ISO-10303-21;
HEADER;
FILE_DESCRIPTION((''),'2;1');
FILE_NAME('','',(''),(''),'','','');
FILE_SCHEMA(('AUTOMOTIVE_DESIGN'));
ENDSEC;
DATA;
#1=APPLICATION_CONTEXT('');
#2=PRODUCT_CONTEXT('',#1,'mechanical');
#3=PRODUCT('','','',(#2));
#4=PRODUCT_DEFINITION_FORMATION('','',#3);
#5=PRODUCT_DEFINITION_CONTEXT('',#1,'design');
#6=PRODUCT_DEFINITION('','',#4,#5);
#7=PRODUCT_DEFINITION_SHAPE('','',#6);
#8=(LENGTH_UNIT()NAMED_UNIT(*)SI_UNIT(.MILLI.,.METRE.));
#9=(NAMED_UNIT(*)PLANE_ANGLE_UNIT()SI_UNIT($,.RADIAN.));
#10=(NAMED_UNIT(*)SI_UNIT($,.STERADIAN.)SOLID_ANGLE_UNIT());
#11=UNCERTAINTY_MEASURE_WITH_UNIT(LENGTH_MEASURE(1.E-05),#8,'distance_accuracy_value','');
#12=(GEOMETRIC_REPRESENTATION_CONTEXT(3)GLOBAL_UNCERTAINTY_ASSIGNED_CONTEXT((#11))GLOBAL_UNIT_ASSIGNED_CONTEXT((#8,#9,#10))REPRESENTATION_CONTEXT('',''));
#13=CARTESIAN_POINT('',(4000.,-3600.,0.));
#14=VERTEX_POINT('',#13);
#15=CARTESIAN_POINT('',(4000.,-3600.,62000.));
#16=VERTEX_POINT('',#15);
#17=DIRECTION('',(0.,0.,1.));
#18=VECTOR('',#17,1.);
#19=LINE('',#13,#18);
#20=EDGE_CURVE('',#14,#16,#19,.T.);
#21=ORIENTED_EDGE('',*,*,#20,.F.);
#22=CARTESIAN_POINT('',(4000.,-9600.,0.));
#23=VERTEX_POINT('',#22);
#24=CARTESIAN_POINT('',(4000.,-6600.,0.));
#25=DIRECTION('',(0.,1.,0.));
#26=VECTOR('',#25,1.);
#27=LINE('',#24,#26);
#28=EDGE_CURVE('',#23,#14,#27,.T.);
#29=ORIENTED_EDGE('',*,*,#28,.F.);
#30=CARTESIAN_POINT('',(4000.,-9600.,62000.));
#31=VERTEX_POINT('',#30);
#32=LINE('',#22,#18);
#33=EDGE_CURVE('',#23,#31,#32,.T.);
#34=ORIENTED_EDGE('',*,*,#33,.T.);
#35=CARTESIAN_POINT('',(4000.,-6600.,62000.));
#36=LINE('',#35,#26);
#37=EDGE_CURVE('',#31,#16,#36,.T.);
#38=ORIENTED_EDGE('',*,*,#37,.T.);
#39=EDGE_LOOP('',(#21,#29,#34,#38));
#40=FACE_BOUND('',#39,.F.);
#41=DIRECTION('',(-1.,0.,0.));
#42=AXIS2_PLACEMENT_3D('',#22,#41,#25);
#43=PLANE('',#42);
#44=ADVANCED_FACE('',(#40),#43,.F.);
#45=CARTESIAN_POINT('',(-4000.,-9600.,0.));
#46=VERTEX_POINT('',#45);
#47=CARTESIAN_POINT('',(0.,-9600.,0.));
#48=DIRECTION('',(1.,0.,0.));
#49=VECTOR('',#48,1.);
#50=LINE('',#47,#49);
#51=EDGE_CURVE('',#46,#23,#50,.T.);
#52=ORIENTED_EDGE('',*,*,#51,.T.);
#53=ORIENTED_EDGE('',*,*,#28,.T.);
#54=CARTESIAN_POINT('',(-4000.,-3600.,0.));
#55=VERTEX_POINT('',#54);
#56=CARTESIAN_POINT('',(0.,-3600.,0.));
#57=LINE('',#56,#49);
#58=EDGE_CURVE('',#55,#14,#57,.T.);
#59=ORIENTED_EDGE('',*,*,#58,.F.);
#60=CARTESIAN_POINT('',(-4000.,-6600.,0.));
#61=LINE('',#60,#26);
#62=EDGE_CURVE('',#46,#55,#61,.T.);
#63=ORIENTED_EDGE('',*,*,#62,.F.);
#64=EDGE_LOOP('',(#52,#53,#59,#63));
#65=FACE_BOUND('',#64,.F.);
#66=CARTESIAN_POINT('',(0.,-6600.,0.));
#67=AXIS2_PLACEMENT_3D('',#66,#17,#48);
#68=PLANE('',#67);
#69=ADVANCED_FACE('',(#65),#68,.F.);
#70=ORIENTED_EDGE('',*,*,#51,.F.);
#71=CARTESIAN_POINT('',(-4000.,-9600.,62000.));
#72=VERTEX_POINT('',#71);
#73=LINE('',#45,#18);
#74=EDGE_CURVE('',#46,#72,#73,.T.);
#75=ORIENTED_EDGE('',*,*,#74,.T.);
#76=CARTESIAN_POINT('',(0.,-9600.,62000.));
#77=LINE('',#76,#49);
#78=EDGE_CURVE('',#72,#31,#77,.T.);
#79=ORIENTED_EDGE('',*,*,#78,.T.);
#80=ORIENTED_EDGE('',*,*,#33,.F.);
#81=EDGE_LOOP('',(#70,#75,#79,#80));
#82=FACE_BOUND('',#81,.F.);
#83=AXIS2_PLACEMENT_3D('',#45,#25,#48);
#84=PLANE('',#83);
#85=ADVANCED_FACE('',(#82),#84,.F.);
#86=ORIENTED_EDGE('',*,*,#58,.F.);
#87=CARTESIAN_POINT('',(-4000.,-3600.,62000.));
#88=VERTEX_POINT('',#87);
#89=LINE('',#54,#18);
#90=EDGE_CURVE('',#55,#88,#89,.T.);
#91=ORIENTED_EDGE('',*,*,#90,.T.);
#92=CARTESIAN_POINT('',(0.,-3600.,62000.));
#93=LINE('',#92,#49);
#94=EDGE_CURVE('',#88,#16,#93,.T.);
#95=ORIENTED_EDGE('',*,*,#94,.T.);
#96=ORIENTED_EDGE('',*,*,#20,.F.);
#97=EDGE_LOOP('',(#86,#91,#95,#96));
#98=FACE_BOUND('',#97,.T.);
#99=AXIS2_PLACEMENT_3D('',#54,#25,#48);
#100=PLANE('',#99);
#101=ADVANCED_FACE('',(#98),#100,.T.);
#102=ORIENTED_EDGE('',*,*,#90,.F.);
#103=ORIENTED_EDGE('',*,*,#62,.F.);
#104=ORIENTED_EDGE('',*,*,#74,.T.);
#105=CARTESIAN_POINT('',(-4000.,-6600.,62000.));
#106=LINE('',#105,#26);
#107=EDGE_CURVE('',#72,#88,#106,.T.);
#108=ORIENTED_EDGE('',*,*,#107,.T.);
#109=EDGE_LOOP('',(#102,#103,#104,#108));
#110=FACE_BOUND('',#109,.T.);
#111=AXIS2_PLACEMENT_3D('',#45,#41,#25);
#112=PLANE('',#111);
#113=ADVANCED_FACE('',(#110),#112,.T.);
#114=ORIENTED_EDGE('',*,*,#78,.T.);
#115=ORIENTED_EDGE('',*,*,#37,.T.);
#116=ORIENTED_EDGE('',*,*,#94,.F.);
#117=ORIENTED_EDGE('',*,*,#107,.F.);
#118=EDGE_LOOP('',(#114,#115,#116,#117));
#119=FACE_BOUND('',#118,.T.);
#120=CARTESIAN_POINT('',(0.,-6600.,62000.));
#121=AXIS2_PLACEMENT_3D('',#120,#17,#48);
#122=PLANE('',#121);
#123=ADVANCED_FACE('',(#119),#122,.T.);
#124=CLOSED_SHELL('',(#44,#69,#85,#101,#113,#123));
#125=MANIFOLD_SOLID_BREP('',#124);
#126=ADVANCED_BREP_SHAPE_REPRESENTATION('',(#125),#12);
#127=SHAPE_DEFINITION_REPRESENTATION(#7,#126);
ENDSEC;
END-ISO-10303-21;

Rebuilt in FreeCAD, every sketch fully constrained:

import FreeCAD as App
import Part
import Sketcher

V = App.Vector

doc = App.newDocument("Part")
body = doc.addObject("PartDesign::Body", "Body")

sketch1 = body.newObject("Sketcher::SketchObject", "Sketch")
sketch1.AttachmentSupport = (doc.getObject("XY_Plane"), [""])
sketch1.MapMode = "FlatFace"
sketch1.addGeometry([
    Part.LineSegment(V(-4000, -3600, 0), V(-4000, -9600, 0)),
    Part.LineSegment(V(-4000, -9600, 0), V(4000, -9600, 0)),
    Part.LineSegment(V(4000, -9600, 0), V(4000, -3600, 0)),
    Part.LineSegment(V(4000, -3600, 0), V(-4000, -3600, 0)),
], False)
sketch1.addConstraint([
    Sketcher.Constraint("Coincident", 0, 2, 1, 1),
    Sketcher.Constraint("Coincident", 1, 2, 2, 1),
    Sketcher.Constraint("Coincident", 2, 2, 3, 1),
    Sketcher.Constraint("Coincident", 3, 2, 0, 1),
    Sketcher.Constraint("Vertical", 0),
    Sketcher.Constraint("Horizontal", 1),
    Sketcher.Constraint("Vertical", 2),
    Sketcher.Constraint("Horizontal", 3),
    Sketcher.Constraint("DistanceX", 1, 1, 1, 2, 8000.0),
    Sketcher.Constraint("DistanceY", 0, 2, 0, 1, 6000.0),
    Sketcher.Constraint("DistanceX", 0, 2, -1, 1, 4000.0),
    Sketcher.Constraint("DistanceY", 0, 2, -1, 1, 9600.0),
])
pad1 = body.newObject("PartDesign::Pad", "Pad")
pad1.Profile = sketch1
pad1.Length = 62000

doc.recompute()
